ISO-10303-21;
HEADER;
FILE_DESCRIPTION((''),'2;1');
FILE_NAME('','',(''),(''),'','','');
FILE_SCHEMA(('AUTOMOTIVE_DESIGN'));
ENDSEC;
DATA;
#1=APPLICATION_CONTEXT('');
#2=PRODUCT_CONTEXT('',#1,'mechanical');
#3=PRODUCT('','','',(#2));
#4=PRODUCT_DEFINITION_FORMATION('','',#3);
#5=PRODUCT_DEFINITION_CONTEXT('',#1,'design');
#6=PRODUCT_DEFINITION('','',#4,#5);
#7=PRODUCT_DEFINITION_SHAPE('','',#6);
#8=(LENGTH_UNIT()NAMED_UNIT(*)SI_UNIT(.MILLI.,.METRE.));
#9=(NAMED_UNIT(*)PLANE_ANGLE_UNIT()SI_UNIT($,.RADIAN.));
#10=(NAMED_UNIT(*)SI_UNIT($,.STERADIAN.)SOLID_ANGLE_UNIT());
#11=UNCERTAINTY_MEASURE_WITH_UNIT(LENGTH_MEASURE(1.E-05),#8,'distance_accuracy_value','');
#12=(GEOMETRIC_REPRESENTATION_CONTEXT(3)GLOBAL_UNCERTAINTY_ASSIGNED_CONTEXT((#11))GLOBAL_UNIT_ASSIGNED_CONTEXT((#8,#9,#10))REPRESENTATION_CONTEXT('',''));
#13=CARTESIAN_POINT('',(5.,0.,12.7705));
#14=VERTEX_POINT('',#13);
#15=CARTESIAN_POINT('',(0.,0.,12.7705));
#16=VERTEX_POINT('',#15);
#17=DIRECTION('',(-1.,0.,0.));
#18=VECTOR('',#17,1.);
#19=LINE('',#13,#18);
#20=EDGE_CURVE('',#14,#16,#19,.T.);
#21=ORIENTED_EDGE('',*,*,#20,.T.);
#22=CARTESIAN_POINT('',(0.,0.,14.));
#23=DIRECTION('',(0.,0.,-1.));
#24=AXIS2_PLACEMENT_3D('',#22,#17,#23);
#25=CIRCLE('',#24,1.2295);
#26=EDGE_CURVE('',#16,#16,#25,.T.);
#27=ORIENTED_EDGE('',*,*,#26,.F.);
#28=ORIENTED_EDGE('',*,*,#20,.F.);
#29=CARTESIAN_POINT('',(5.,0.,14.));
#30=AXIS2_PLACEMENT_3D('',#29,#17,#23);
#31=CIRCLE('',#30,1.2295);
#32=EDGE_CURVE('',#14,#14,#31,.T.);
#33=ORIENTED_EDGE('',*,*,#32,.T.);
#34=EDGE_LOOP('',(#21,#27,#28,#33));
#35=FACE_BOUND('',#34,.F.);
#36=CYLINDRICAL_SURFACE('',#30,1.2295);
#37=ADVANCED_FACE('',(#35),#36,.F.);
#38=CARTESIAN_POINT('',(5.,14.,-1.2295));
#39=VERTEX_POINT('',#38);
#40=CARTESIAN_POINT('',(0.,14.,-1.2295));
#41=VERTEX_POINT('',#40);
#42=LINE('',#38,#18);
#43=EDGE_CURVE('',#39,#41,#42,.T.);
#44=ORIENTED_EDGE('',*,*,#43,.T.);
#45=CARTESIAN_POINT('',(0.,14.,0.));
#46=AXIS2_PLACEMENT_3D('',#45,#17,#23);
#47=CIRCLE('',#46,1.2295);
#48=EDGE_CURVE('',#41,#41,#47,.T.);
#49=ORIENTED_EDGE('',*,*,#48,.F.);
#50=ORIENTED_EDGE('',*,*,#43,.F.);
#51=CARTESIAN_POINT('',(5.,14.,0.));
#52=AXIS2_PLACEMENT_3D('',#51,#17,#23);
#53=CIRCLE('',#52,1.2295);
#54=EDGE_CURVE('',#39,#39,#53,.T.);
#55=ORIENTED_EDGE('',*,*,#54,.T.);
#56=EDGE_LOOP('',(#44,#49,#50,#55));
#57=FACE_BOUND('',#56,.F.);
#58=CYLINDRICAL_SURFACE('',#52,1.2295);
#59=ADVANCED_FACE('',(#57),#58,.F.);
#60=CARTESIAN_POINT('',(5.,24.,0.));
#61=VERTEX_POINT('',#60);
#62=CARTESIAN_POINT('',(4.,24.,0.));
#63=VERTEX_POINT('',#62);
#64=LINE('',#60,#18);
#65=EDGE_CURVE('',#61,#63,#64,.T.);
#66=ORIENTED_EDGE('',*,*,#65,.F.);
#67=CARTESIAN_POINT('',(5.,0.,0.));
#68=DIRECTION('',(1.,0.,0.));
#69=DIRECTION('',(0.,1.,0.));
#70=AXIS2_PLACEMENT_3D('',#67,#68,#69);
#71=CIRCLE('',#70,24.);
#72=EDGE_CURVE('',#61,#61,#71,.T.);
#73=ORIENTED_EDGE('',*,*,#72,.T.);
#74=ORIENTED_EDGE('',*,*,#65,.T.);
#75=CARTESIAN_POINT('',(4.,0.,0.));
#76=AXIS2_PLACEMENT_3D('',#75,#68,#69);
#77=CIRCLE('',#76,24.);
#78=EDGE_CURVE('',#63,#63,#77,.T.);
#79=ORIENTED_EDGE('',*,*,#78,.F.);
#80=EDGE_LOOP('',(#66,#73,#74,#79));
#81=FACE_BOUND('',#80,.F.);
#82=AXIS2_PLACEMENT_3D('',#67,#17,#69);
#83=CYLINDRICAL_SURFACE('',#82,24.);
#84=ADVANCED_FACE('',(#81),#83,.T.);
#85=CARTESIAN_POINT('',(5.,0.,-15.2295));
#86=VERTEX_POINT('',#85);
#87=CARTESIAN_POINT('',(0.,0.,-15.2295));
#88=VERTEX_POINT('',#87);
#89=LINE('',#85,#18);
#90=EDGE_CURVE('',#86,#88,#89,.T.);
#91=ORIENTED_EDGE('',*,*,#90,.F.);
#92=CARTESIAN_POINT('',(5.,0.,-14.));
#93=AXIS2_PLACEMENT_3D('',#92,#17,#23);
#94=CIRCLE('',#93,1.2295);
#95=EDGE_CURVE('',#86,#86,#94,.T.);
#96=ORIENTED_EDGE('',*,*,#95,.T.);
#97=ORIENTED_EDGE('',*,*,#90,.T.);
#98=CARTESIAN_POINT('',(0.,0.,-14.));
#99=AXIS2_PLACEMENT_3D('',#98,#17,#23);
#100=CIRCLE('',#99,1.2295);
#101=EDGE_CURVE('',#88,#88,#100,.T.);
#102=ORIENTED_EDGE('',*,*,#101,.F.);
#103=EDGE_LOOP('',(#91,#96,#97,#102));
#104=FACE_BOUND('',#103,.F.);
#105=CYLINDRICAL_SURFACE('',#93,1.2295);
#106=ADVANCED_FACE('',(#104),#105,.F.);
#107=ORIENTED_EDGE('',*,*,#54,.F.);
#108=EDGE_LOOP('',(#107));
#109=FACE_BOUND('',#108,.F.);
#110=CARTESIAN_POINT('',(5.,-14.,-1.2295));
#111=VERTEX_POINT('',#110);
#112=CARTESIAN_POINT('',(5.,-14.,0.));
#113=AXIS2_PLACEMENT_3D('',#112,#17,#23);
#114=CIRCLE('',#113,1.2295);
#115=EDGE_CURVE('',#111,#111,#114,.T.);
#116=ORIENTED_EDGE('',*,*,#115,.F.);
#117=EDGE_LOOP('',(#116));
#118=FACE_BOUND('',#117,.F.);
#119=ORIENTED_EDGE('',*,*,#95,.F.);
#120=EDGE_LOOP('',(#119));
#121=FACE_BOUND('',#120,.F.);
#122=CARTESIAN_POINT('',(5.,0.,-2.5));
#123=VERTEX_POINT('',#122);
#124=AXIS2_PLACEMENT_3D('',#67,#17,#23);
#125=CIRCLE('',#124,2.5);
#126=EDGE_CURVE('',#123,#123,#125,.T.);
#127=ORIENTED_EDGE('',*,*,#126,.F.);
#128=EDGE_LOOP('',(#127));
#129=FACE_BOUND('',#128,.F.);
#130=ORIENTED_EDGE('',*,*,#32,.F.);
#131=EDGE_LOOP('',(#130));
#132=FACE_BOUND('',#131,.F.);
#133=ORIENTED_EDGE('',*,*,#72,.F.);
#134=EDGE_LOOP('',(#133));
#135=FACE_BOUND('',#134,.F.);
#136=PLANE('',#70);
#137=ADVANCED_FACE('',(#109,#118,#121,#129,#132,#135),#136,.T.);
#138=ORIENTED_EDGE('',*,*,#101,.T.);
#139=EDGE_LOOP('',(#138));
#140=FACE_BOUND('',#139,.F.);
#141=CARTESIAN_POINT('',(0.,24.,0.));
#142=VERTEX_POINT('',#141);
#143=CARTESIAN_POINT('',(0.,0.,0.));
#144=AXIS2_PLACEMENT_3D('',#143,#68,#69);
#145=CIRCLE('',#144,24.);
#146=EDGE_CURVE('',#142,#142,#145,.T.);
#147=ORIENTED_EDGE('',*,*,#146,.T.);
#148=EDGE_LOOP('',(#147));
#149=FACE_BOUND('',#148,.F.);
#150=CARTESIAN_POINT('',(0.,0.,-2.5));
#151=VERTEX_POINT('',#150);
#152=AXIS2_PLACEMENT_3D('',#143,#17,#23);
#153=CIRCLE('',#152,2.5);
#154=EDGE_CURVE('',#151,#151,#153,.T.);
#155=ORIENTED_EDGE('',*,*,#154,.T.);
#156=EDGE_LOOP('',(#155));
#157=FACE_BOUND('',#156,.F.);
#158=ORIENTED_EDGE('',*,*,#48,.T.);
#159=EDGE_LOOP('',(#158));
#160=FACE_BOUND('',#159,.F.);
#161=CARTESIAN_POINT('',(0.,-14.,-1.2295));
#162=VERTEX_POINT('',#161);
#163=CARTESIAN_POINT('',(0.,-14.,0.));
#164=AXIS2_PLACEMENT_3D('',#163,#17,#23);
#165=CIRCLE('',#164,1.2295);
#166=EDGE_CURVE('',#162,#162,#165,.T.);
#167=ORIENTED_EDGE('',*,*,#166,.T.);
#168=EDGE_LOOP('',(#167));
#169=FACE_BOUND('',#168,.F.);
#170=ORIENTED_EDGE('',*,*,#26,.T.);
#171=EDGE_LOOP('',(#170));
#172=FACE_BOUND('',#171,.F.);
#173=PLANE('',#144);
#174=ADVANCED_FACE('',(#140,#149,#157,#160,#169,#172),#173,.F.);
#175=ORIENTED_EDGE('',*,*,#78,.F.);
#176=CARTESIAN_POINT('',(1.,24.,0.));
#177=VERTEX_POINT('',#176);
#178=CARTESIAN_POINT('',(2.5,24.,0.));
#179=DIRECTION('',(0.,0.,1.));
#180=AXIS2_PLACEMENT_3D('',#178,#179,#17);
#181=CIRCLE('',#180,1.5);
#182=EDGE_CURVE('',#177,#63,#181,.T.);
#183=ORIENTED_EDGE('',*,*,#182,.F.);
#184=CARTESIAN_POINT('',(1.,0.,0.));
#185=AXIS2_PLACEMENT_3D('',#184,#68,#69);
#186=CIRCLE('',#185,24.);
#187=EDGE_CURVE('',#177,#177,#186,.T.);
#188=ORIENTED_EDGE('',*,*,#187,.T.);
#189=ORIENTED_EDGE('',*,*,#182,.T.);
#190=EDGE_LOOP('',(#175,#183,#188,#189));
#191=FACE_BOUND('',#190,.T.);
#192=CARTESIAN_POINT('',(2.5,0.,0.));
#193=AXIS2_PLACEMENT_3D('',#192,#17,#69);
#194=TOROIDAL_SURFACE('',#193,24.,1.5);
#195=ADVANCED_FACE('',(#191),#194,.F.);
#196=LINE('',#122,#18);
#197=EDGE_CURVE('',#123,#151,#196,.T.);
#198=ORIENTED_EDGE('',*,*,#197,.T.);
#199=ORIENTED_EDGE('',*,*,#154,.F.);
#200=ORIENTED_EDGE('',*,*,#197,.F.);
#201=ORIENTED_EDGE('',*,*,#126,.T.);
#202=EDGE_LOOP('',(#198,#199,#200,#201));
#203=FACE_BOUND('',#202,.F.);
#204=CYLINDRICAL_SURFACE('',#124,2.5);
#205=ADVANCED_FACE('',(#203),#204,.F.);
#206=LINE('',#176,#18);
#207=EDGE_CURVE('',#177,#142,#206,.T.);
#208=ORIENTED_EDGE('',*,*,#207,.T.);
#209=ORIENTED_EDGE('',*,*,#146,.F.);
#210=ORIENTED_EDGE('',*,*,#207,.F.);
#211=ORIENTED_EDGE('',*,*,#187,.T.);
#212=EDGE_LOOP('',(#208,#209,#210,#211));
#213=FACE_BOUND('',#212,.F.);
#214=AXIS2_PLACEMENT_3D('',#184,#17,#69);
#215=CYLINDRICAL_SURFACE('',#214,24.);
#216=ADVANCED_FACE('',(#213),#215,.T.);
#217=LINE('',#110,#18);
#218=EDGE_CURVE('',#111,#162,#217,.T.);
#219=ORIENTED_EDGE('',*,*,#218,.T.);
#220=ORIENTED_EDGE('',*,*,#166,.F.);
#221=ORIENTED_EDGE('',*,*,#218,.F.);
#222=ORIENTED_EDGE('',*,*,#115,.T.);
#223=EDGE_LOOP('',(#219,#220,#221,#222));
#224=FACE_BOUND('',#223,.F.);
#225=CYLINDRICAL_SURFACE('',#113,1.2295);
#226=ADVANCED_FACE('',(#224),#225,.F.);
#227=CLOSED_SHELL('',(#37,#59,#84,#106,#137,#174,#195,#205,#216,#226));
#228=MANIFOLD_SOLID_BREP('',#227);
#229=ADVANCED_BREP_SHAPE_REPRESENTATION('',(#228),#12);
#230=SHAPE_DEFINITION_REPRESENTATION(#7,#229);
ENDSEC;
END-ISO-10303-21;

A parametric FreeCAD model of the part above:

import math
import FreeCAD as App
import Part
import Sketcher
from FreeCAD import Vector

doc = App.newDocument("Part")
body = doc.addObject("PartDesign::Body", "Body")

sketch1 = doc.addObject("Sketcher::SketchObject", "Sketch")
body.addObject(sketch1)
sketch1.AttachmentSupport = (doc.XY_Plane, [""])
sketch1.MapMode = "FlatFace"
sketch1.addGeometry([
    Part.LineSegment(Vector(0, 24, 0), Vector(0, 0, 0)),
    Part.LineSegment(Vector(0, 0, 0), Vector(5, 0, 0)),
    Part.LineSegment(Vector(5, 0, 0), Vector(5, 24, 0)),
    Part.LineSegment(Vector(5, 24, 0), Vector(4, 24, 0)),
    Part.ArcOfCircle(Part.Circle(Vector(2.5, 24, 0), Vector(0, 0, 1), 1.5), math.radians(180), math.radians(360)),
    Part.LineSegment(Vector(1, 24, 0), Vector(0, 24, 0)),
], False)
sketch1.addConstraint([
    Sketcher.Constraint("Coincident", 0, 2, 1, 1),
    Sketcher.Constraint("Coincident", 1, 2, 2, 1),
    Sketcher.Constraint("Coincident", 2, 2, 3, 1),
    Sketcher.Constraint("Coincident", 3, 2, 4, 2),
    Sketcher.Constraint("Coincident", 4, 1, 5, 1),
    Sketcher.Constraint("Coincident", 5, 2, 0, 1),
    Sketcher.Constraint("Vertical", 0),
    Sketcher.Constraint("Horizontal", 1),
    Sketcher.Constraint("Vertical", 2),
    Sketcher.Constraint("Horizontal", 3),
    Sketcher.Constraint("Horizontal", 5),
    Sketcher.Constraint("Coincident", 0, 2, -1, 1),
    Sketcher.Constraint("Horizontal", 4, 3, 2, 2),
    Sketcher.Constraint("Horizontal", 3, 2, 4, 1),
    Sketcher.Constraint("Equal", 3, 5),
    Sketcher.Constraint("Radius", 4, 1.5),
    Sketcher.Constraint("DistanceX", 1, 1, 1, 2, 5.0),
    Sketcher.Constraint("DistanceY", 0, 2, 0, 1, 24.0),
])
revolution = doc.addObject("PartDesign::Revolution", "Revolution")
body.addObject(revolution)
revolution.Profile = sketch1
revolution.ReferenceAxis = (sketch1, ["H_Axis"])
revolution.Angle = 360

sketch2 = doc.addObject("Sketcher::SketchObject", "Sketch001")
body.addObject(sketch2)
sketch2.AttachmentSupport = (doc.YZ_Plane, [""])
sketch2.MapMode = "FlatFace"
sketch2.AttachmentOffset = App.Placement(Vector(0, 0, 5), App.Rotation())
sketch2.addGeometry(Part.Circle(Vector(0, 0, 0), Vector(0, 0, 1), 2.5), False)
sketch2.addConstraint([
    Sketcher.Constraint("Coincident", 0, 3, -1, 1),
    Sketcher.Constraint("Diameter", 0, 5.0),
])
doc.recompute()
hole = doc.addObject("PartDesign::Hole", "Hole")
body.addObject(hole)
hole.Profile = sketch2
hole.ThreadType = "None"
hole.Diameter = 5
hole.DepthType = "ThroughAll"

sketch3 = doc.addObject("Sketcher::SketchObject", "Sketch002")
body.addObject(sketch3)
sketch3.AttachmentSupport = (doc.YZ_Plane, [""])
sketch3.MapMode = "FlatFace"
sketch3.AttachmentOffset = App.Placement(Vector(0, 0, 5), App.Rotation())
sketch3.addGeometry([
    Part.Circle(Vector(14, 0, 0), Vector(0, 0, 1), 1.2),
    Part.Circle(Vector(0, 14, 0), Vector(0, 0, 1), 1.2),
    Part.Circle(Vector(-14, 0, 0), Vector(0, 0, 1), 1.2),
    Part.Circle(Vector(0, -14, 0), Vector(0, 0, 1), 1.2),
], False)
sketch3.addConstraint([
    Sketcher.Constraint("Equal", 0, 1),
    Sketcher.Constraint("Equal", 1, 2),
    Sketcher.Constraint("Equal", 2, 3),
    Sketcher.Constraint("Symmetric", 0, 3, 2, 3, -1, 1),
    Sketcher.Constraint("Symmetric", 1, 3, 3, 3, -1, 1),
    Sketcher.Constraint("PointOnObject", 0, 3, -1),
    Sketcher.Constraint("PointOnObject", 1, 3, -2),
    Sketcher.Constraint("Diameter", 0, 2.459),
    Sketcher.Constraint("DistanceX", -1, 1, 0, 3, 14.0),
    Sketcher.Constraint("DistanceY", -1, 1, 1, 3, 14.0),
])
doc.recompute()
hole2 = doc.addObject("PartDesign::Hole", "Hole001")
body.addObject(hole2)
hole2.Profile = sketch3
hole2.ThreadType = "None"
hole2.Diameter = 2.459
hole2.DepthType = "ThroughAll"

doc.recompute()
